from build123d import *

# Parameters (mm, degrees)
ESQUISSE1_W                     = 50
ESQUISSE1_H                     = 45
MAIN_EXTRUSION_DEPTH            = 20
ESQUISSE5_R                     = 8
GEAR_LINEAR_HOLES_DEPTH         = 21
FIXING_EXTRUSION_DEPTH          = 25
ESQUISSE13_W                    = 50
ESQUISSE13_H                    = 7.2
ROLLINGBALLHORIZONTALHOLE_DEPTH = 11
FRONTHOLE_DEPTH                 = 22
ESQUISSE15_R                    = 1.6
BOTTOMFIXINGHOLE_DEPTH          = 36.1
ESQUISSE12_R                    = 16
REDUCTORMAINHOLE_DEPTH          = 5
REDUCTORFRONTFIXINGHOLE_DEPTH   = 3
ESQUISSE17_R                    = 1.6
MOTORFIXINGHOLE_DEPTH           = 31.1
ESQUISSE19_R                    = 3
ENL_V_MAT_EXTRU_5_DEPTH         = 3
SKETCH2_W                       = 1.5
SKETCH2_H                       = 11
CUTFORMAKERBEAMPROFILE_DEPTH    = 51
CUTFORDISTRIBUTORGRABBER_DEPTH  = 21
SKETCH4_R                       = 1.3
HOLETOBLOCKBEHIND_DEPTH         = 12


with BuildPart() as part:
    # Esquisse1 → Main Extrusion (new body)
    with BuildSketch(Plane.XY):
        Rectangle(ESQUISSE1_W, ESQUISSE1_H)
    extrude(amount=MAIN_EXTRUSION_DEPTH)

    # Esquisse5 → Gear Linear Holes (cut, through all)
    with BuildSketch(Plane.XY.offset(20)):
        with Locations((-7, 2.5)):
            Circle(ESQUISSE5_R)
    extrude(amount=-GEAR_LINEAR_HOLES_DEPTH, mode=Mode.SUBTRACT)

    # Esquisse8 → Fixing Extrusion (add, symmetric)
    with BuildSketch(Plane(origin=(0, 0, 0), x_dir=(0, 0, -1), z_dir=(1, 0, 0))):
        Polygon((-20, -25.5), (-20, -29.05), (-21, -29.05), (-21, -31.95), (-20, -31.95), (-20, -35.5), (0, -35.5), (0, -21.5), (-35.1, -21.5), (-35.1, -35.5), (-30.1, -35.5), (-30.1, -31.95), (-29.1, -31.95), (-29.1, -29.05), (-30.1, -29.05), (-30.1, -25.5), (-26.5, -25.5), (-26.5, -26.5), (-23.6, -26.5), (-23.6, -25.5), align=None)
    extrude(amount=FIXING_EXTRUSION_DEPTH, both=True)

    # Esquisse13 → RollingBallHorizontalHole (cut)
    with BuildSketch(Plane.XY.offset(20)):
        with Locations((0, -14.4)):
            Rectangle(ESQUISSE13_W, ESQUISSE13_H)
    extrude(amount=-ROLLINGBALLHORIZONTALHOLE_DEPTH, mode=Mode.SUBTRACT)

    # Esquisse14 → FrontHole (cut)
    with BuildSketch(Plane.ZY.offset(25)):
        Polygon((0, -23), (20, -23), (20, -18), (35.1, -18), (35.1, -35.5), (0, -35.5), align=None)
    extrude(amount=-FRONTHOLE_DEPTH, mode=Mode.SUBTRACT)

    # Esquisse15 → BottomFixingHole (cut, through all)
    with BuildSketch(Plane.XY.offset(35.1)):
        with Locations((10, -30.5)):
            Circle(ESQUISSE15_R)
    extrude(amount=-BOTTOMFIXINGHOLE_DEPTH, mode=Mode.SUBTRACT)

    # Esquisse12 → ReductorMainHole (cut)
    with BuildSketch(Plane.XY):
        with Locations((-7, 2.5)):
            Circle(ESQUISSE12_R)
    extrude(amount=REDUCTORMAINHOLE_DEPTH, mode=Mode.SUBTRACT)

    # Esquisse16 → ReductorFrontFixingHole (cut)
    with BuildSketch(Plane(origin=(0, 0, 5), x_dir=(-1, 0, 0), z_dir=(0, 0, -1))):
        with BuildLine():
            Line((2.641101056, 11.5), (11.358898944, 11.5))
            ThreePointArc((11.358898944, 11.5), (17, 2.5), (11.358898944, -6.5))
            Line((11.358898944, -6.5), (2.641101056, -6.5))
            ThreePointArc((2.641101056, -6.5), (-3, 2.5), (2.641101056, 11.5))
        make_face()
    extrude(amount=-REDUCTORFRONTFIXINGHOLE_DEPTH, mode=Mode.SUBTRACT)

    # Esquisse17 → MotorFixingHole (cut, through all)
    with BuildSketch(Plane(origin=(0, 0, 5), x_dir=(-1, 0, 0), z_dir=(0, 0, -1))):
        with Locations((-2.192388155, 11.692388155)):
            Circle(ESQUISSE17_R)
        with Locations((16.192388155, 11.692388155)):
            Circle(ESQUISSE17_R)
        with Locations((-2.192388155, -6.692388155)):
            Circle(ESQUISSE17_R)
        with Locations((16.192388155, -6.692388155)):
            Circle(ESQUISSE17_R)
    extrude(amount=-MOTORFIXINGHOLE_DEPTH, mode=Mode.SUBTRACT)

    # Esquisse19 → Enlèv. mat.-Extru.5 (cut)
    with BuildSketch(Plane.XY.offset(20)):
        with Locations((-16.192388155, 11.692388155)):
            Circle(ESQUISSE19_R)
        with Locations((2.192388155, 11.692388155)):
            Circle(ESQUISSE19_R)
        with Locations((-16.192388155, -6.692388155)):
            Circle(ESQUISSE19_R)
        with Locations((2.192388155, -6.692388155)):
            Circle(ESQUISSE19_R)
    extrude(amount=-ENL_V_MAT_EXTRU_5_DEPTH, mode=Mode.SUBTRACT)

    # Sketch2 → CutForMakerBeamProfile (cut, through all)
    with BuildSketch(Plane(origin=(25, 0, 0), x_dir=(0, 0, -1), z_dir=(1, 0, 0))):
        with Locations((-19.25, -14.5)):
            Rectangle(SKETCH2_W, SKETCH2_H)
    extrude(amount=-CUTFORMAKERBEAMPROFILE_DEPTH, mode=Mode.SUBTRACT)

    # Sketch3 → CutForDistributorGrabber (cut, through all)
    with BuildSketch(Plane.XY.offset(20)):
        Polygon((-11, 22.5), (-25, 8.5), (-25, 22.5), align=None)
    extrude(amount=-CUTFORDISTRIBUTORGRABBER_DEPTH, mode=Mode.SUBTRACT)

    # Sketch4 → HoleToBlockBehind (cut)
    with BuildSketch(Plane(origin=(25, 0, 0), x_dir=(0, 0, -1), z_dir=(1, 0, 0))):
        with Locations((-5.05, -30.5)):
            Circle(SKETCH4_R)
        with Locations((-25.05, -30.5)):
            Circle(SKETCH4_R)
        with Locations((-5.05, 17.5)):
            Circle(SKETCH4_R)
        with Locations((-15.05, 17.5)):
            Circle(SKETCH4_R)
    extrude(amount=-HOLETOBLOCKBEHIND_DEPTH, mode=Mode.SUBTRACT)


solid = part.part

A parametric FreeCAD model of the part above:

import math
import FreeCAD as App
import Part
import Sketcher
from FreeCAD import Vector
Q = App.Units.Quantity


def add_polygon(sketch, points):
    """Adds a closed chain of lines whose ends are joined by coincident constraints."""
    first, n = sketch.GeometryCount, len(points)
    for a, b in zip(points, points[1:] + points[:1]):
        sketch.addGeometry(Part.LineSegment(App.Vector(*a, 0), App.Vector(*b, 0)), False)
    for i in range(n):
        sketch.addConstraint(Sketcher.Constraint("Coincident", first + i, 2, first + (i + 1) % n, 1))

doc = App.newDocument("Part")
params = doc.addObject("Spreadsheet::Sheet", "Params")
for row, (alias, value) in enumerate([
    ("sketch1_width", "50 mm"),
    ("sketch1_height", "45 mm"),
    ("pad1_length", "20 mm"),
    ("sketch2_diameter", "16 mm"),
    ("sketch3_width", "14 mm"),
    ("sketch3_width2", "1 mm"),
    ("sketch3_height", "20 mm"),
    ("sketch3_height2", "5 mm"),
    ("sketch3_width3", "2.9 mm"),
    ("pad2_length", "50 mm"),
    ("sketch4_width", "50 mm"),
    ("sketch4_height", "7.2 mm"),
    ("pocket2_length", "11 mm"),
    ("sketch5_width", "5 mm"),
    ("sketch5_height", "20 mm"),
    ("sketch5_width2", "12.5 mm"),
    ("sketch5_height2", "35.1 mm"),
    ("pocket3_length", "22 mm"),
    ("sketch6_diameter", "3.2 mm"),
    ("sketch7_diameter", "32 mm"),
    ("pocket5_length", "5 mm"),
    ("sketch8_radius", "10 mm"),
    ("pocket6_length", "3 mm"),
    ("sketch9_diameter", "3.2 mm"),
    ("sketch10_diameter", "6 mm"),
    ("pocket8_length", "3 mm"),
    ("sketch11_width", "11 mm"),
    ("sketch11_height", "1.5 mm"),
    ("sketch12_width", "14 mm"),
    ("sketch13_diameter", "2.6 mm"),
    ("pocket11_length", "12 mm"),
], start=1):
    params.set(f"A{row}", alias)
    params.set(f"B{row}", "=" + value)
    params.setAlias(f"B{row}", alias)

body = doc.addObject("PartDesign::Body", "Body")

# Sketch on XY plane
sketch1 = body.newObject("Sketcher::SketchObject", "Sketch")
sketch1.AttachmentSupport = (doc.getObject("XY_Plane"), [""])
sketch1.MapMode = "FlatFace"
add_polygon(sketch1, [(-25, 22.5), (-25, -22.5), (25, -22.5), (25, 22.5)])  # lines 0-3
sketch1.addConstraint([
    Sketcher.Constraint("Vertical", 0),
    Sketcher.Constraint("Horizontal", 1),
    Sketcher.Constraint("Vertical", 2),
    Sketcher.Constraint("Horizontal", 3),
    Sketcher.Constraint("Symmetric", 0, 2, 2, 2, -1, 1),
    Sketcher.Constraint("DistanceX", 1, 1, 1, 2, Q("50 mm")),
    Sketcher.Constraint("DistanceY", 0, 2, 0, 1, Q("45 mm")),
])
sketch1.setExpression("Constraints[9]", "Params.sketch1_width")
sketch1.setExpression("Constraints[10]", "Params.sketch1_height")
pad1 = body.newObject("PartDesign::Pad", "Pad")
pad1.Profile = sketch1
pad1.setExpression("Length", "Params.pad1_length")

# Sketch on XY plane
sketch2 = body.newObject("Sketcher::SketchObject", "Sketch001")
sketch2.AttachmentSupport = (doc.getObject("XY_Plane"), [""])
sketch2.MapMode = "FlatFace"
sketch2.AttachmentOffset = App.Placement(Vector(0, 0, 20), App.Rotation())
sketch2.addGeometry(Part.Circle(Vector(-7, 2.5, 0), Vector(0, 0, 1), 8), False)
sketch2.addConstraint([
    Sketcher.Constraint("Diameter", 0, Q("16 mm")),
    Sketcher.Constraint("DistanceX", 0, 3, -1, 1, Q("7 mm")),
    Sketcher.Constraint("DistanceY", -1, 1, 0, 3, Q("2.5 mm")),
])
sketch2.setExpression("Constraints[0]", "Params.sketch2_diameter")
pocket1 = body.newObject("PartDesign::Pocket", "Pocket")
pocket1.Profile = sketch2
pocket1.Type = "ThroughAll"

# Sketch on YZ plane
sketch3 = body.newObject("Sketcher::SketchObject", "Sketch002")
sketch3.AttachmentSupport = (doc.getObject("YZ_Plane"), [""])
sketch3.MapMode = "FlatFace"
add_polygon(sketch3, [(-25.5, 20), (-29.05, 20), (-29.05, 21), (-31.95, 21), (-31.95, 20), (-35.5, 20), (-35.5, 0), (-21.5, 0), (-21.5, 35.1), (-35.5, 35.1), (-35.5, 30.1), (-31.95, 30.1), (-31.95, 29.1), (-29.05, 29.1), (-29.05, 30.1), (-25.5, 30.1), (-25.5, 26.5), (-26.5, 26.5), (-26.5, 23.6), (-25.5, 23.6)])  # lines 0-19
sketch3.addConstraint([
    Sketcher.Constraint("Horizontal", 0),
    Sketcher.Constraint("Vertical", 1),
    Sketcher.Constraint("Horizontal", 2),
    Sketcher.Constraint("Vertical", 3),
    Sketcher.Constraint("Horizontal", 4),
    Sketcher.Constraint("Vertical", 5),
    Sketcher.Constraint("Horizontal", 6),
    Sketcher.Constraint("Vertical", 7),
    Sketcher.Constraint("Horizontal", 8),
    Sketcher.Constraint("Vertical", 9),
    Sketcher.Constraint("Horizontal", 10),
    Sketcher.Constraint("Vertical", 11),
    Sketcher.Constraint("Horizontal", 12),
    Sketcher.Constraint("Vertical", 13),
    Sketcher.Constraint("Horizontal", 14),
    Sketcher.Constraint("Vertical", 15),
    Sketcher.Constraint("Horizontal", 16),
    Sketcher.Constraint("Vertical", 17),
    Sketcher.Constraint("Horizontal", 18),
    Sketcher.Constraint("Vertical", 19),
    Sketcher.Constraint("PointOnObject", 5, 2, -1),
    Sketcher.Constraint("Horizontal", 0, 2, 3, 2),
    Sketcher.Constraint("Horizontal", 10, 2, 13, 2),
    Sketcher.Constraint("Vertical", 5, 2, 8, 2),
    Sketcher.Constraint("Vertical", 3, 2, 10, 2),
    Sketcher.Constraint("Vertical", 1, 2, 12, 2),
    Sketcher.Constraint("Vertical", 15, 2, 18, 2),
    Sketcher.Constraint("Equal", 0, 4),
    Sketcher.Constraint("Equal", 18, 1),
    Sketcher.Constraint("Equal", 3, 11),
    Sketcher.Constraint("Equal", 12, 17),
    Sketcher.Constraint("Equal", 15, 19),
    Sketcher.Constraint("DistanceX", 6, 1, 6, 2, Q("14 mm")),
    Sketcher.Constraint("DistanceX", 16, 2, 16, 1, Q("1 mm")),
    Sketcher.Constraint("DistanceY", 5, 2, 5, 1, Q("20 mm")),
    Sketcher.Constraint("DistanceY", 9, 2, 9, 1, Q("5 mm")),
    Sketcher.Constraint("DistanceX", 2, 2, 2, 1, Q("2.9 mm")),
    Sketcher.Constraint("DistanceY", 7, 1, 7, 2, Q("35.1 mm")),
    Sketcher.Constraint("DistanceX", 14, 2, 7, 2, Q("4 mm")),
    Sketcher.Constraint("DistanceX", 4, 2, -1, 1, Q("35.5 mm")),
])
sketch3.setExpression("Constraints[52]", "Params.sketch3_width")
sketch3.setExpression("Constraints[53]", "Params.sketch3_width2")
sketch3.setExpression("Constraints[54]", "Params.sketch3_height")
sketch3.setExpression("Constraints[55]", "Params.sketch3_height2")
sketch3.setExpression("Constraints[56]", "Params.sketch3_width3")
pad2 = body.newObject("PartDesign::Pad", "Pad001")
pad2.Profile = sketch3
pad2.setExpression("Length", "Params.pad2_length")
pad2.Midplane = True

# Sketch on XY plane
sketch4 = body.newObject("Sketcher::SketchObject", "Sketch003")
sketch4.AttachmentSupport = (doc.getObject("XY_Plane"), [""])
sketch4.MapMode = "FlatFace"
sketch4.AttachmentOffset = App.Placement(Vector(0, 0, 20), App.Rotation())
add_polygon(sketch4, [(-25, -10.8), (-25, -18), (25, -18), (25, -10.8)])  # lines 0-3
sketch4.addConstraint([
    Sketcher.Constraint("Vertical", 0),
    Sketcher.Constraint("Horizontal", 1),
    Sketcher.Constraint("Vertical", 2),
    Sketcher.Constraint("Horizontal", 3),
    Sketcher.Constraint("DistanceX", 1, 1, 1, 2, Q("50 mm")),
    Sketcher.Constraint("DistanceY", 0, 2, 0, 1, Q("7.2 mm")),
    Sketcher.Constraint("DistanceX", 0, 2, -1, 1, Q("25 mm")),
    Sketcher.Constraint("DistanceY", 0, 2, -1, 1, Q("18 mm")),
])
sketch4.setExpression("Constraints[8]", "Params.sketch4_width")
sketch4.setExpression("Constraints[9]", "Params.sketch4_height")
pocket2 = body.newObject("PartDesign::Pocket", "Pocket001")
pocket2.Profile = sketch4
pocket2.setExpression("Length", "Params.pocket2_length")

# Sketch on YZ plane
sketch5 = body.newObject("Sketcher::SketchObject", "Sketch004")
sketch5.AttachmentSupport = (doc.getObject("YZ_Plane"), [""])
sketch5.MapMode = "FlatFace"
sketch5.AttachmentOffset = App.Placement(Vector(0, 0, -25), App.Rotation())
add_polygon(sketch5, [(-23, 20), (-23, 0), (-35.5, 0), (-35.5, 35.1), (-18, 35.1), (-18, 20)])  # lines 0-5
sketch5.addConstraint([
    Sketcher.Constraint("Vertical", 0),
    Sketcher.Constraint("Horizontal", 1),
    Sketcher.Constraint("Vertical", 2),
    Sketcher.Constraint("Horizontal", 3),
    Sketcher.Constraint("Vertical", 4),
    Sketcher.Constraint("Horizontal", 5),
    Sketcher.Constraint("PointOnObject", 0, 2, -1),
    Sketcher.Constraint("DistanceX", 5, 2, 5, 1, Q("5 mm")),
    Sketcher.Constraint("DistanceY", 0, 2, 0, 1, Q("20 mm")),
    Sketcher.Constraint("DistanceX", 1, 2, 1, 1, Q("12.5 mm")),
    Sketcher.Constraint("DistanceY", 2, 1, 2, 2, Q("35.1 mm")),
    Sketcher.Constraint("DistanceX", 0, 2, -1, 1, Q("23 mm")),
])
sketch5.setExpression("Constraints[13]", "Params.sketch5_width")
sketch5.setExpression("Constraints[14]", "Params.sketch5_height")
sketch5.setExpression("Constraints[15]", "Params.sketch5_width2")
sketch5.setExpression("Constraints[16]", "Params.sketch5_height2")
pocket3 = body.newObject("PartDesign::Pocket", "Pocket002")
pocket3.Profile = sketch5
pocket3.setExpression("Length", "Params.pocket3_length")
pocket3.Reversed = True

# Sketch on XY plane
sketch6 = body.newObject("Sketcher::SketchObject", "Sketch005")
sketch6.AttachmentSupport = (doc.getObject("XY_Plane"), [""])
sketch6.MapMode = "FlatFace"
sketch6.AttachmentOffset = App.Placement(Vector(0, 0, 35.1), App.Rotation())
sketch6.addGeometry(Part.Circle(Vector(10, -30.5, 0), Vector(0, 0, 1), 1.6), False)
sketch6.addConstraint([
    Sketcher.Constraint("Diameter", 0, Q("3.2 mm")),
    Sketcher.Constraint("DistanceX", -1, 1, 0, 3, Q("10 mm")),
    Sketcher.Constraint("DistanceY", 0, 3, -1, 1, Q("30.5 mm")),
])
sketch6.setExpression("Constraints[0]", "Params.sketch6_diameter")
pocket4 = body.newObject("PartDesign::Pocket", "Pocket003")
pocket4.Profile = sketch6
pocket4.Type = "ThroughAll"

# Sketch on XY plane
sketch7 = body.newObject("Sketcher::SketchObject", "Sketch006")
sketch7.AttachmentSupport = (doc.getObject("XY_Plane"), [""])
sketch7.MapMode = "FlatFace"
sketch7.addGeometry(Part.Circle(Vector(-7, 2.5, 0), Vector(0, 0, 1), 16), False)
sketch7.addConstraint([
    Sketcher.Constraint("Diameter", 0, Q("32 mm")),
    Sketcher.Constraint("DistanceX", 0, 3, -1, 1, Q("7 mm")),
    Sketcher.Constraint("DistanceY", -1, 1, 0, 3, Q("2.5 mm")),
])
sketch7.setExpression("Constraints[0]", "Params.sketch7_diameter")
pocket5 = body.newObject("PartDesign::Pocket", "Pocket004")
pocket5.Profile = sketch7
pocket5.setExpression("Length", "Params.pocket5_length")
pocket5.Reversed = True

# Sketch on XY plane
sketch8 = body.newObject("Sketcher::SketchObject", "Sketch007")
sketch8.AttachmentSupport = (doc.getObject("XY_Plane"), [""])
sketch8.MapMode = "FlatFace"
sketch8.AttachmentOffset = App.Placement(Vector(0, 0, 5), App.Rotation())
sketch8.addGeometry([
    Part.LineSegment(Vector(-11.358899, 11.5, 0), Vector(-2.641101, 11.5, 0)),
    Part.ArcOfCircle(Part.Circle(Vector(-7, 2.5, 0), Vector(0, 0, 1), 10), math.radians(-64.158067), math.radians(64.158067)),
    Part.LineSegment(Vector(-2.641101, -6.5, 0), Vector(-11.358899, -6.5, 0)),
    Part.ArcOfCircle(Part.Circle(Vector(-7, 2.5, 0), Vector(0, 0, 1), 10), math.radians(115.841933), math.radians(244.158067)),
], False)
sketch8.addConstraint([
    Sketcher.Constraint("Coincident", 0, 2, 1, 2),
    Sketcher.Constraint("Coincident", 1, 1, 2, 1),
    Sketcher.Constraint("Coincident", 2, 2, 3, 2),
    Sketcher.Constraint("Coincident", 3, 1, 0, 1),
    Sketcher.Constraint("Horizontal", 0),
    Sketcher.Constraint("Horizontal", 2),
    Sketcher.Constraint("Coincident", 3, 3, 1, 3),
    Sketcher.Constraint("Equal", 1, 3),
    Sketcher.Constraint("Vertical", 0, 2, 1, 1),
    Sketcher.Constraint("Radius", 1, Q("10 mm")),
    Sketcher.Constraint("DistanceX", 1, 3, -1, 1, Q("7 mm")),
    Sketcher.Constraint("DistanceY", 1, 3, 0, 2, Q("9 mm")),
    Sketcher.Constraint("DistanceY", -1, 1, 1, 3, Q("2.5 mm")),
])
sketch8.setExpression("Constraints[9]", "Params.sketch8_radius")
pocket6 = body.newObject("PartDesign::Pocket", "Pocket005")
pocket6.Profile = sketch8
pocket6.setExpression("Length", "Params.pocket6_length")
pocket6.Reversed = True

# Sketch on XY plane
sketch9 = body.newObject("Sketcher::SketchObject", "Sketch008")
sketch9.AttachmentSupport = (doc.getObject("XY_Plane"), [""])
sketch9.MapMode = "FlatFace"
sketch9.AttachmentOffset = App.Placement(Vector(0, 0, 5), App.Rotation())
sketch9.addGeometry([
    Part.Circle(Vector(2.192388, 11.692388, 0), Vector(0, 0, 1), 1.6),
    Part.Circle(Vector(-16.192388, 11.692388, 0), Vector(0, 0, 1), 1.6),
    Part.Circle(Vector(2.192388, -6.692388, 0), Vector(0, 0, 1), 1.6),
    Part.Circle(Vector(-16.192388, -6.692388, 0), Vector(0, 0, 1), 1.6),
], False)
sketch9.addConstraint([
    Sketcher.Constraint("Equal", 0, 1),
    Sketcher.Constraint("Equal", 1, 2),
    Sketcher.Constraint("Equal", 2, 3),
    Sketcher.Constraint("Horizontal", 0, 3, 1, 3),
    Sketcher.Constraint("Horizontal", 2, 3, 3, 3),
    Sketcher.Constraint("Vertical", 0, 3, 2, 3),
    Sketcher.Constraint("Vertical", 1, 3, 3, 3),
    Sketcher.Constraint("Diameter", 0, Q("3.2 mm")),
    Sketcher.Constraint("DistanceX", -1, 1, 0, 3, Q("2.192388 mm")),
    Sketcher.Constraint("DistanceY", -1, 1, 0, 3, Q("11.692388 mm")),
    Sketcher.Constraint("DistanceX", 1, 3, -1, 1, Q("16.192388 mm")),
    Sketcher.Constraint("DistanceY", 2, 3, -1, 1, Q("6.692388 mm")),
])
sketch9.setExpression("Constraints[7]", "Params.sketch9_diameter")
pocket7 = body.newObject("PartDesign::Pocket", "Pocket006")
pocket7.Profile = sketch9
pocket7.Type = "ThroughAll"
pocket7.Reversed = True

# Sketch on XY plane
sketch10 = body.newObject("Sketcher::SketchObject", "Sketch009")
sketch10.AttachmentSupport = (doc.getObject("XY_Plane"), [""])
sketch10.MapMode = "FlatFace"
sketch10.AttachmentOffset = App.Placement(Vector(0, 0, 20), App.Rotation())
sketch10.addGeometry([
    Part.Circle(Vector(-16.192388, 11.692388, 0), Vector(0, 0, 1), 3),
    Part.Circle(Vector(2.192388, 11.692388, 0), Vector(0, 0, 1), 3),
    Part.Circle(Vector(-16.192388, -6.692388, 0), Vector(0, 0, 1), 3),
    Part.Circle(Vector(2.192388, -6.692388, 0), Vector(0, 0, 1), 3),
], False)
sketch10.addConstraint([
    Sketcher.Constraint("Equal", 0, 1),
    Sketcher.Constraint("Equal", 1, 2),
    Sketcher.Constraint("Equal", 2, 3),
    Sketcher.Constraint("Horizontal", 0, 3, 1, 3),
    Sketcher.Constraint("Horizontal", 2, 3, 3, 3),
    Sketcher.Constraint("Vertical", 0, 3, 2, 3),
    Sketcher.Constraint("Vertical", 1, 3, 3, 3),
    Sketcher.Constraint("Diameter", 0, Q("6 mm")),
    Sketcher.Constraint("DistanceX", 0, 3, -1, 1, Q("16.192388 mm")),
    Sketcher.Constraint("DistanceY", -1, 1, 0, 3, Q("11.692388 mm")),
    Sketcher.Constraint("DistanceX", -1, 1, 1, 3, Q("2.192388 mm")),
    Sketcher.Constraint("DistanceY", 2, 3, -1, 1, Q("6.692388 mm")),
])
sketch10.setExpression("Constraints[7]", "Params.sketch10_diameter")
pocket8 = body.newObject("PartDesign::Pocket", "Pocket007")
pocket8.Profile = sketch10
pocket8.setExpression("Length", "Params.pocket8_length")

# Sketch on YZ plane
sketch11 = body.newObject("Sketcher::SketchObject", "Sketch010")
sketch11.AttachmentSupport = (doc.getObject("YZ_Plane"), [""])
sketch11.MapMode = "FlatFace"
sketch11.AttachmentOffset = App.Placement(Vector(0, 0, 25), App.Rotation())
add_polygon(sketch11, [(-9, 20), (-20, 20), (-20, 18.5), (-9, 18.5)])  # lines 0-3
sketch11.addConstraint([
    Sketcher.Constraint("Horizontal", 0),
    Sketcher.Constraint("Vertical", 1),
    Sketcher.Constraint("Horizontal", 2),
    Sketcher.Constraint("Vertical", 3),
    Sketcher.Constraint("DistanceX", 0, 2, 0, 1, Q("11 mm")),
    Sketcher.Constraint("DistanceY", 1, 2, 1, 1, Q("1.5 mm")),
    Sketcher.Constraint("DistanceX", 0, 2, -1, 1, Q("20 mm")),
    Sketcher.Constraint("DistanceY", -1, 1, 0, 2, Q("20 mm")),
])
sketch11.setExpression("Constraints[8]", "Params.sketch11_width")
sketch11.setExpression("Constraints[9]", "Params.sketch11_height")
pocket9 = body.newObject("PartDesign::Pocket", "Pocket008")
pocket9.Profile = sketch11
pocket9.Type = "ThroughAll"

# Sketch on XY plane
sketch12 = body.newObject("Sketcher::SketchObject", "Sketch011")
sketch12.AttachmentSupport = (doc.getObject("XY_Plane"), [""])
sketch12.MapMode = "FlatFace"
sketch12.AttachmentOffset = App.Placement(Vector(0, 0, 20), App.Rotation())
add_polygon(sketch12, [(-25, 8.5), (-11, 22.5), (-25, 22.5)])  # lines 0-2
sketch12.addConstraint([
    Sketcher.Constraint("Horizontal", 1),
    Sketcher.Constraint("Vertical", 2),
    Sketcher.Constraint("Equal", 1, 2),
    Sketcher.Constraint("DistanceX", 1, 2, 1, 1, Q("14 mm")),
    Sketcher.Constraint("DistanceX", 0, 2, -1, 1, Q("11 mm")),
    Sketcher.Constraint("DistanceY", -1, 1, 0, 2, Q("22.5 mm")),
])
sketch12.setExpression("Constraints[6]", "Params.sketch12_width")
pocket10 = body.newObject("PartDesign::Pocket", "Pocket009")
pocket10.Profile = sketch12
pocket10.Type = "ThroughAll"

# Sketch on YZ plane
sketch13 = body.newObject("Sketcher::SketchObject", "Sketch012")
sketch13.AttachmentSupport = (doc.getObject("YZ_Plane"), [""])
sketch13.MapMode = "FlatFace"
sketch13.AttachmentOffset = App.Placement(Vector(0, 0, 25), App.Rotation())
sketch13.addGeometry([
    Part.Circle(Vector(-30.5, 5.05, 0), Vector(0, 0, 1), 1.3),
    Part.Circle(Vector(-30.5, 25.05, 0), Vector(0, 0, 1), 1.3),
    Part.Circle(Vector(17.5, 5.05, 0), Vector(0, 0, 1), 1.3),
    Part.Circle(Vector(17.5, 15.05, 0), Vector(0, 0, 1), 1.3),
], False)
sketch13.addConstraint([
    Sketcher.Constraint("Equal", 0, 1),
    Sketcher.Constraint("Equal", 1, 2),
    Sketcher.Constraint("Equal", 2, 3),
    Sketcher.Constraint("Horizontal", 0, 3, 2, 3),
    Sketcher.Constraint("Vertical", 0, 3, 1, 3),
    Sketcher.Constraint("Vertical", 2, 3, 3, 3),
    Sketcher.Constraint("Diameter", 0, Q("2.6 mm")),
    Sketcher.Constraint("DistanceY", 0, 3, 1, 3, Q("20 mm")),
    Sketcher.Constraint("DistanceX", 0, 3, 2, 3, Q("48 mm")),
    Sketcher.Constraint("DistanceY", 2, 3, 3, 3, Q("10 mm")),
    Sketcher.Constraint("DistanceX", 0, 3, -1, 1, Q("30.5 mm")),
    Sketcher.Constraint("DistanceY", -1, 1, 0, 3, Q("5.05 mm")),
])
sketch13.setExpression("Constraints[6]", "Params.sketch13_diameter")
pocket11 = body.newObject("PartDesign::Pocket", "Pocket010")
pocket11.Profile = sketch13
pocket11.setExpression("Length", "Params.pocket11_length")

doc.recompute()
